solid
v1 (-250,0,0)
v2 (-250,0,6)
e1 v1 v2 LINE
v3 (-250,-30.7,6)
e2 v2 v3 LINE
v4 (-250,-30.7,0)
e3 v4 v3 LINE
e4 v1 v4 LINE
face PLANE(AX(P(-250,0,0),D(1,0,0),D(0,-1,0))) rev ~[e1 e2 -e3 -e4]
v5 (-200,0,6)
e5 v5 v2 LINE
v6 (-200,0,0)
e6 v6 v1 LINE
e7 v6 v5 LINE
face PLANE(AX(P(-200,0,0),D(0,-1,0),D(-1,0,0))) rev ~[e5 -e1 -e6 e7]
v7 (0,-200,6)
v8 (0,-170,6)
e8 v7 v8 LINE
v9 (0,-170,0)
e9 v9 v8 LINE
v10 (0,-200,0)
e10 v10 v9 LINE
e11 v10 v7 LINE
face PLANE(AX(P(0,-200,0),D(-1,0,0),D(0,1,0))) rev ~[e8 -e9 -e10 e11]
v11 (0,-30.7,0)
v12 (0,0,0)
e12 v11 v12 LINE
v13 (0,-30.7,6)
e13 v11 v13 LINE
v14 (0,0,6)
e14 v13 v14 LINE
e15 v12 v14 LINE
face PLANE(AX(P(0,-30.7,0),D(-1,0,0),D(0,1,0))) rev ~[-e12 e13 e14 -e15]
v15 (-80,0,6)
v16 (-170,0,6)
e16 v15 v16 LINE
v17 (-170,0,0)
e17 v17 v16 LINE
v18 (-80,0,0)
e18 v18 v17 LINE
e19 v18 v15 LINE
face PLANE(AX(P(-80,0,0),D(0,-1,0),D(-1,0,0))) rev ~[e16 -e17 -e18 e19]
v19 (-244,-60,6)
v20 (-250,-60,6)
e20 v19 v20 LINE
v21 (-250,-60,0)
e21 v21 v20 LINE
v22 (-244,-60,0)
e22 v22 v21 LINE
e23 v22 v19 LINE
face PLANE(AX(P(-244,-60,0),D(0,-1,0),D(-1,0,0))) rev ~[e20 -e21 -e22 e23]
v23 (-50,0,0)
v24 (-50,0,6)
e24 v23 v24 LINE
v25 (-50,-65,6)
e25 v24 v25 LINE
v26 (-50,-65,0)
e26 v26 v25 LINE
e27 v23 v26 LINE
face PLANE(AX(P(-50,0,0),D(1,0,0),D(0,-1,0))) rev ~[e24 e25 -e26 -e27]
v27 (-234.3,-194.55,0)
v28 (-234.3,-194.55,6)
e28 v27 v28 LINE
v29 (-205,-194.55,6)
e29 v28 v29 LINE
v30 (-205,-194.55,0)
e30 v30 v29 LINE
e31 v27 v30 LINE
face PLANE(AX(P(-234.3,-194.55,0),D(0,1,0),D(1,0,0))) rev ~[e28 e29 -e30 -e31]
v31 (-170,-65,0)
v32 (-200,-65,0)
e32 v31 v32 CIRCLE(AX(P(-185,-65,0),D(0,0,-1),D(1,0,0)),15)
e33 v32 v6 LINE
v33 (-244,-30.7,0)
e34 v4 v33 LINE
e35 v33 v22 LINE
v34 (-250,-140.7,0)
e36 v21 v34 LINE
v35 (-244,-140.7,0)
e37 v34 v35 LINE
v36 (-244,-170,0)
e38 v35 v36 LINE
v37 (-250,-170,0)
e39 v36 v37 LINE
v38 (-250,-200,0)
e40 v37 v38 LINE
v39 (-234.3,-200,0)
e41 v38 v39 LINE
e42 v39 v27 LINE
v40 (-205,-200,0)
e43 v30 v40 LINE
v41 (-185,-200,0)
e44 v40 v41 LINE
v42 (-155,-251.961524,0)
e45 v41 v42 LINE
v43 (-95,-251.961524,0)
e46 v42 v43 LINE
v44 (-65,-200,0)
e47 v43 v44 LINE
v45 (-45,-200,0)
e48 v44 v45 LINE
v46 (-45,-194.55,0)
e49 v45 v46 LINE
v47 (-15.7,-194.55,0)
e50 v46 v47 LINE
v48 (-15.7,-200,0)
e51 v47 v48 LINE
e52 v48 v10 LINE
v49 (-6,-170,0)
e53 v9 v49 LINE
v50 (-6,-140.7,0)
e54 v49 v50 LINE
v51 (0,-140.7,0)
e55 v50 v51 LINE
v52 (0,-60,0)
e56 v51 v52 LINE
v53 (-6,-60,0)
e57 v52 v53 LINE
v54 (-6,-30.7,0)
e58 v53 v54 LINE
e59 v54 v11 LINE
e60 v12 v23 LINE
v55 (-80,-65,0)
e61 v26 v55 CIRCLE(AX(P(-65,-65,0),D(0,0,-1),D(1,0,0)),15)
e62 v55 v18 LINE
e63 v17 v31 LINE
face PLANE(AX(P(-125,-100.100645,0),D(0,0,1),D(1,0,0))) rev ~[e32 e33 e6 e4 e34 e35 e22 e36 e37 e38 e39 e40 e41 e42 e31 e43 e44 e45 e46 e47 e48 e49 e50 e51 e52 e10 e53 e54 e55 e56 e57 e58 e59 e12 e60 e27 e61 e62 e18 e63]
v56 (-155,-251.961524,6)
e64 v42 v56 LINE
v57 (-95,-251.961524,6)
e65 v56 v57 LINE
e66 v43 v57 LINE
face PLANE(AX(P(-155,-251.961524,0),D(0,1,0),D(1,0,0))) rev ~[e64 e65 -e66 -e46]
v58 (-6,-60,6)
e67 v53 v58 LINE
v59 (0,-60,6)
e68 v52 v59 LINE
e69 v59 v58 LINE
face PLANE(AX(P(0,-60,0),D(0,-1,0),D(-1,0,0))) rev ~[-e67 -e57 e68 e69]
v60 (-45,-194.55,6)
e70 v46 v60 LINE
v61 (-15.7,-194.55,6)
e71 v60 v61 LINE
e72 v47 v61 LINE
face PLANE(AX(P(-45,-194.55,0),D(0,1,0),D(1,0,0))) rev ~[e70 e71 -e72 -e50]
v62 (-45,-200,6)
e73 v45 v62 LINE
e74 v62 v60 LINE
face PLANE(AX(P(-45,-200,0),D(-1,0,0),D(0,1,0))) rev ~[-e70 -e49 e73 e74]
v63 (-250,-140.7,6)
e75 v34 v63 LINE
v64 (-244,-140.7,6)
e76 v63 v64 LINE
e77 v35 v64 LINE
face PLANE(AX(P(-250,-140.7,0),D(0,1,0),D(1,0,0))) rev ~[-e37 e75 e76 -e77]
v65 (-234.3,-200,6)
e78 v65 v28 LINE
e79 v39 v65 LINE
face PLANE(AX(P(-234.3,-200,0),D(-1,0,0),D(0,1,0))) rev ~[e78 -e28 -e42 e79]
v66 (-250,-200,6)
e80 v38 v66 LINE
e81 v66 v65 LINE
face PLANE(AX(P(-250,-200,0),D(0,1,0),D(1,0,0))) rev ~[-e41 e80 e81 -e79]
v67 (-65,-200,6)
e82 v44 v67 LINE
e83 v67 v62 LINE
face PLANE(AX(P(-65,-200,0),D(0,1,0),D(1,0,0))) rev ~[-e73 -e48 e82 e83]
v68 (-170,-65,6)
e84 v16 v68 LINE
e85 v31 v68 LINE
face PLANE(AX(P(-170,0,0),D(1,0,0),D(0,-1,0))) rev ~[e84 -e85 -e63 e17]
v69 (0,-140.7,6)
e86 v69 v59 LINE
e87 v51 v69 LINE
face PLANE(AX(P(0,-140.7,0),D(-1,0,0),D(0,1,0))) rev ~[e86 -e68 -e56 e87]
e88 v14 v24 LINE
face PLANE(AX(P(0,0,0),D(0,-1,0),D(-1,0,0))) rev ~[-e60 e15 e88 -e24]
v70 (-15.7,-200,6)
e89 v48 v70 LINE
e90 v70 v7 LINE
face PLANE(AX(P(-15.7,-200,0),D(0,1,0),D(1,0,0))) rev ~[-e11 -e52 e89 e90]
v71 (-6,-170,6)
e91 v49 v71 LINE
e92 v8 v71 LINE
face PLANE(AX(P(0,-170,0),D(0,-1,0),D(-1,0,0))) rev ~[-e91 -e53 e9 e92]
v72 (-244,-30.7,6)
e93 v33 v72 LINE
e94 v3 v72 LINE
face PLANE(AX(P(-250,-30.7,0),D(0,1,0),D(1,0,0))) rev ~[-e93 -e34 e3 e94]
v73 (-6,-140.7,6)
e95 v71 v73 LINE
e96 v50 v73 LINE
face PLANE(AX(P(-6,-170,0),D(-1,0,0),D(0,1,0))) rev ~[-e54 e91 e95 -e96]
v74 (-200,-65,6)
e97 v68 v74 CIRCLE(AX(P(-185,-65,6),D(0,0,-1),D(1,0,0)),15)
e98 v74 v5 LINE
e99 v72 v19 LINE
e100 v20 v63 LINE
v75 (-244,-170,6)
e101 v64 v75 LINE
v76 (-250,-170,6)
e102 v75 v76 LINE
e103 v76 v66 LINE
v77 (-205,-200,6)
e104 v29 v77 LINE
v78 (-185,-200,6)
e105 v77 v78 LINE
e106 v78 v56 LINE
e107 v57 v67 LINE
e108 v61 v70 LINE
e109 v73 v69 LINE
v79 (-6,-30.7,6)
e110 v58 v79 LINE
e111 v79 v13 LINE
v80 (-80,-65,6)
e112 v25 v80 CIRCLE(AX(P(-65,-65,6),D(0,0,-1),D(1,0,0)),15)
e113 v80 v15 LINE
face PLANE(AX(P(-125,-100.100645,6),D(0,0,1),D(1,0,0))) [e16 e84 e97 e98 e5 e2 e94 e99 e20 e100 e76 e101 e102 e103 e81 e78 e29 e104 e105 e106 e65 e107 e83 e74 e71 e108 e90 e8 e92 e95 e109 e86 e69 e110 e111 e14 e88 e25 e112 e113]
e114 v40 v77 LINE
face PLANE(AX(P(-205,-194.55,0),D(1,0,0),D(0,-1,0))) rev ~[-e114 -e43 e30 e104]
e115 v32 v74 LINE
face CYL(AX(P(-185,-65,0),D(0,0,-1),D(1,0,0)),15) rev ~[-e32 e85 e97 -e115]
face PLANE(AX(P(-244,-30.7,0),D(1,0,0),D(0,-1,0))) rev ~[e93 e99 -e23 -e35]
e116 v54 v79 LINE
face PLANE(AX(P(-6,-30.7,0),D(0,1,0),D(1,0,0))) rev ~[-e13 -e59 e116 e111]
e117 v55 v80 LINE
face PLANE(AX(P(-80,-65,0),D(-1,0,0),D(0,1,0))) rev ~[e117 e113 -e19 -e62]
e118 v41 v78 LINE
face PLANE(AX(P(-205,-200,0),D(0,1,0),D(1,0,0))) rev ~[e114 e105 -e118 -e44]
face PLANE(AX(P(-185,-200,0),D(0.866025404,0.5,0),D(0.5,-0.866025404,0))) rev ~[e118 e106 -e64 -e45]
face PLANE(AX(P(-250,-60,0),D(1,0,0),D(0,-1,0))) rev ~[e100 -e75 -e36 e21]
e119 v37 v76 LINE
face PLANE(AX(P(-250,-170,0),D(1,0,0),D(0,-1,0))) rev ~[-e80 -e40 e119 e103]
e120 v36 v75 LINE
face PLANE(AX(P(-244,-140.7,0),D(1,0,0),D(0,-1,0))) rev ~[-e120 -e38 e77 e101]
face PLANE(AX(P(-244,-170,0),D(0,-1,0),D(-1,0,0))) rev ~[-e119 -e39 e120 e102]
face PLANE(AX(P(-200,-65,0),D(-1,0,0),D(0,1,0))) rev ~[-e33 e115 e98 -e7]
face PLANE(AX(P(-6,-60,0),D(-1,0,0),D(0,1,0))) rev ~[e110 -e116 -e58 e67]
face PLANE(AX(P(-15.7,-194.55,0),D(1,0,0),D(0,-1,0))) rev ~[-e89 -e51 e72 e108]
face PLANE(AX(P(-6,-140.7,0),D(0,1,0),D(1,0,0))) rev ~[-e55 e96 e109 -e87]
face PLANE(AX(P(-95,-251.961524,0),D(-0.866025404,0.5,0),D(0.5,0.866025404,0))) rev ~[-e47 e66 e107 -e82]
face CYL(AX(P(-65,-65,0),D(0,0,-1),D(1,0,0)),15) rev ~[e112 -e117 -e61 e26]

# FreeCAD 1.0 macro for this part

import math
import FreeCAD as App
import Part
import Sketcher

V = App.Vector
Q = App.Units.Quantity

doc = App.newDocument("Part")
params = doc.addObject("Spreadsheet::Sheet", "Params")
for row, (alias, value) in enumerate([
    ("sketch1_radius", "15 mm"),
    ("sketch1_width", "50 mm"),
    ("sketch1_width2", "90 mm"),
    ("sketch1_width3", "6 mm"),
    ("sketch1_width4", "20 mm"),
    ("pad1_length", "6 mm"),
], start=1):
    params.set(f"A{row}", alias)
    params.set(f"B{row}", "=" + value)
    params.setAlias(f"B{row}", alias)

body = doc.addObject("PartDesign::Body", "Body")

# Sketch on XY plane
sketch1 = doc.addObject("Sketcher::SketchObject", "Sketch")
body.addObject(sketch1)
sketch1.AttachmentSupport = (doc.XY_Plane, [""])
sketch1.MapMode = "FlatFace"
sketch1.addGeometry(Part.LineSegment(V(0, 0, 0), V(-50, 0, 0)), False)
sketch1.addGeometry(Part.LineSegment(V(-50, 0, 0), V(-50, -65, 0)), False)
sketch1.addGeometry(Part.ArcOfCircle(Part.Circle(V(-65, -65, 0), V(0, 0, 1), 15), math.radians(180), math.radians(360)), False)
sketch1.addGeometry(Part.LineSegment(V(-80, -65, 0), V(-80, 0, 0)), False)
sketch1.addGeometry(Part.LineSegment(V(-80, 0, 0), V(-170, 0, 0)), False)
sketch1.addGeometry(Part.LineSegment(V(-170, 0, 0), V(-170, -65, 0)), False)
sketch1.addGeometry(Part.ArcOfCircle(Part.Circle(V(-185, -65, 0), V(0, 0, 1), 15), math.radians(180), math.radians(360)), False)
sketch1.addGeometry(Part.LineSegment(V(-200, -65, 0), V(-200, 0, 0)), False)
sketch1.addGeometry(Part.LineSegment(V(-200, 0, 0), V(-250, 0, 0)), False)
sketch1.addGeometry(Part.LineSegment(V(-250, 0, 0), V(-250, -31, 0)), False)
sketch1.addGeometry(Part.LineSegment(V(-250, -31, 0), V(-244, -31, 0)), False)
sketch1.addGeometry(Part.LineSegment(V(-244, -31, 0), V(-244, -60, 0)), False)
sketch1.addGeometry(Part.LineSegment(V(-244, -60, 0), V(-250, -60, 0)), False)
sketch1.addGeometry(Part.LineSegment(V(-250, -60, 0), V(-250, -141, 0)), False)
sketch1.addGeometry(Part.LineSegment(V(-250, -141, 0), V(-244, -141, 0)), False)
sketch1.addGeometry(Part.LineSegment(V(-244, -141, 0), V(-244, -170, 0)), False)
sketch1.addGeometry(Part.LineSegment(V(-244, -170, 0), V(-250, -170, 0)), False)
sketch1.addGeometry(Part.LineSegment(V(-250, -170, 0), V(-250, -200, 0)), False)
sketch1.addGeometry(Part.LineSegment(V(-250, -200, 0), V(-234, -200, 0)), False)
sketch1.addGeometry(Part.LineSegment(V(-234, -200, 0), V(-234, -195, 0)), False)
sketch1.addGeometry(Part.LineSegment(V(-234, -195, 0), V(-205, -195, 0)), False)
sketch1.addGeometry(Part.LineSegment(V(-205, -195, 0), V(-205, -200, 0)), False)
sketch1.addGeometry(Part.LineSegment(V(-205, -200, 0), V(-185, -200, 0)), False)
sketch1.addGeometry(Part.LineSegment(V(-185, -200, 0), V(-155, -252, 0)), False)
sketch1.addGeometry(Part.LineSegment(V(-155, -252, 0), V(-95, -252, 0)), False)
sketch1.addGeometry(Part.LineSegment(V(-95, -252, 0), V(-65, -200, 0)), False)
sketch1.addGeometry(Part.LineSegment(V(-65, -200, 0), V(-45, -200, 0)), False)
sketch1.addGeometry(Part.LineSegment(V(-45, -200, 0), V(-45, -195, 0)), False)
sketch1.addGeometry(Part.LineSegment(V(-45, -195, 0), V(-16, -195, 0)), False)
sketch1.addGeometry(Part.LineSegment(V(-16, -195, 0), V(-16, -200, 0)), False)
sketch1.addGeometry(Part.LineSegment(V(-16, -200, 0), V(0, -200, 0)), False)
sketch1.addGeometry(Part.LineSegment(V(0, -200, 0), V(0, -170, 0)), False)
sketch1.addGeometry(Part.LineSegment(V(0, -170, 0), V(-6, -170, 0)), False)
sketch1.addGeometry(Part.LineSegment(V(-6, -170, 0), V(-6, -141, 0)), False)
sketch1.addGeometry(Part.LineSegment(V(-6, -141, 0), V(0, -141, 0)), False)
sketch1.addGeometry(Part.LineSegment(V(0, -141, 0), V(0, -60, 0)), False)
sketch1.addGeometry(Part.LineSegment(V(0, -60, 0), V(-6, -60, 0)), False)
sketch1.addGeometry(Part.LineSegment(V(-6, -60, 0), V(-6, -31, 0)), False)
sketch1.addGeometry(Part.LineSegment(V(-6, -31, 0), V(0, -31, 0)), False)
sketch1.addGeometry(Part.LineSegment(V(0, -31, 0), V(0, 0, 0)), False)
sketch1.addConstraint(Sketcher.Constraint("Coincident", 0, 2, 1, 1))
sketch1.addConstraint(Sketcher.Constraint("Tangent", 1, 2, 2, 2))
sketch1.addConstraint(Sketcher.Constraint("Tangent", 2, 1, 3, 1))
sketch1.addConstraint(Sketcher.Constraint("Coincident", 3, 2, 4, 1))
sketch1.addConstraint(Sketcher.Constraint("Coincident", 4, 2, 5, 1))
sketch1.addConstraint(Sketcher.Constraint("Tangent", 5, 2, 6, 2))
sketch1.addConstraint(Sketcher.Constraint("Tangent", 6, 1, 7, 1))
sketch1.addConstraint(Sketcher.Constraint("Coincident", 7, 2, 8, 1))
sketch1.addConstraint(Sketcher.Constraint("Coincident", 8, 2, 9, 1))
sketch1.addConstraint(Sketcher.Constraint("Coincident", 9, 2, 10, 1))
sketch1.addConstraint(Sketcher.Constraint("Coincident", 10, 2, 11, 1))
sketch1.addConstraint(Sketcher.Constraint("Coincident", 11, 2, 12, 1))
sketch1.addConstraint(Sketcher.Constraint("Coincident", 12, 2, 13, 1))
sketch1.addConstraint(Sketcher.Constraint("Coincident", 13, 2, 14, 1))
sketch1.addConstraint(Sketcher.Constraint("Coincident", 14, 2, 15, 1))
sketch1.addConstraint(Sketcher.Constraint("Coincident", 15, 2, 16, 1))
sketch1.addConstraint(Sketcher.Constraint("Coincident", 16, 2, 17, 1))
sketch1.addConstraint(Sketcher.Constraint("Coincident", 17, 2, 18, 1))
sketch1.addConstraint(Sketcher.Constraint("Coincident", 18, 2, 19, 1))
sketch1.addConstraint(Sketcher.Constraint("Coincident", 19, 2, 20, 1))
sketch1.addConstraint(Sketcher.Constraint("Coincident", 20, 2, 21, 1))
sketch1.addConstraint(Sketcher.Constraint("Coincident", 21, 2, 22, 1))
sketch1.addConstraint(Sketcher.Constraint("Coincident", 22, 2, 23, 1))
sketch1.addConstraint(Sketcher.Constraint("Coincident", 23, 2, 24, 1))
sketch1.addConstraint(Sketcher.Constraint("Coincident", 24, 2, 25, 1))
sketch1.addConstraint(Sketcher.Constraint("Coincident", 25, 2, 26, 1))
sketch1.addConstraint(Sketcher.Constraint("Coincident", 26, 2, 27, 1))
sketch1.addConstraint(Sketcher.Constraint("Coincident", 27, 2, 28, 1))
sketch1.addConstraint(Sketcher.Constraint("Coincident", 28, 2, 29, 1))
sketch1.addConstraint(Sketcher.Constraint("Coincident", 29, 2, 30, 1))
sketch1.addConstraint(Sketcher.Constraint("Coincident", 30, 2, 31, 1))
sketch1.addConstraint(Sketcher.Constraint("Coincident", 31, 2, 32, 1))
sketch1.addConstraint(Sketcher.Constraint("Coincident", 32, 2, 33, 1))
sketch1.addConstraint(Sketcher.Constraint("Coincident", 33, 2, 34, 1))
sketch1.addConstraint(Sketcher.Constraint("Coincident", 34, 2, 35, 1))
sketch1.addConstraint(Sketcher.Constraint("Coincident", 35, 2, 36, 1))
sketch1.addConstraint(Sketcher.Constraint("Coincident", 36, 2, 37, 1))
sketch1.addConstraint(Sketcher.Constraint("Coincident", 37, 2, 38, 1))
sketch1.addConstraint(Sketcher.Constraint("Coincident", 38, 2, 39, 1))
sketch1.addConstraint(Sketcher.Constraint("Coincident", 39, 2, 0, 1))
sketch1.addConstraint(Sketcher.Constraint("Horizontal", 0))
sketch1.addConstraint(Sketcher.Constraint("Vertical", 1))
sketch1.addConstraint(Sketcher.Constraint("Vertical", 3))
sketch1.addConstraint(Sketcher.Constraint("Horizontal", 4))
sketch1.addConstraint(Sketcher.Constraint("Vertical", 5))
sketch1.addConstraint(Sketcher.Constraint("Vertical", 7))
sketch1.addConstraint(Sketcher.Constraint("Horizontal", 8))
sketch1.addConstraint(Sketcher.Constraint("Vertical", 9))
sketch1.addConstraint(Sketcher.Constraint("Horizontal", 10))
sketch1.addConstraint(Sketcher.Constraint("Vertical", 11))
sketch1.addConstraint(Sketcher.Constraint("Horizontal", 12))
sketch1.addConstraint(Sketcher.Constraint("Vertical", 13))
sketch1.addConstraint(Sketcher.Constraint("Horizontal", 14))
sketch1.addConstraint(Sketcher.Constraint("Vertical", 15))
sketch1.addConstraint(Sketcher.Constraint("Horizontal", 16))
sketch1.addConstraint(Sketcher.Constraint("Vertical", 17))
sketch1.addConstraint(Sketcher.Constraint("Horizontal", 18))
sketch1.addConstraint(Sketcher.Constraint("Vertical", 19))
sketch1.addConstraint(Sketcher.Constraint("Horizontal", 20))
sketch1.addConstraint(Sketcher.Constraint("Vertical", 21))
sketch1.addConstraint(Sketcher.Constraint("Horizontal", 22))
sketch1.addConstraint(Sketcher.Constraint("Horizontal", 24))
sketch1.addConstraint(Sketcher.Constraint("Horizontal", 26))
sketch1.addConstraint(Sketcher.Constraint("Vertical", 27))
sketch1.addConstraint(Sketcher.Constraint("Horizontal", 28))
sketch1.addConstraint(Sketcher.Constraint("Vertical", 29))
sketch1.addConstraint(Sketcher.Constraint("Horizontal", 30))
sketch1.addConstraint(Sketcher.Constraint("Vertical", 31))
sketch1.addConstraint(Sketcher.Constraint("Horizontal", 32))
sketch1.addConstraint(Sketcher.Constraint("Vertical", 33))
sketch1.addConstraint(Sketcher.Constraint("Horizontal", 34))
sketch1.addConstraint(Sketcher.Constraint("Vertical", 35))
sketch1.addConstraint(Sketcher.Constraint("Horizontal", 36))
sketch1.addConstraint(Sketcher.Constraint("Vertical", 37))
sketch1.addConstraint(Sketcher.Constraint("Horizontal", 38))
sketch1.addConstraint(Sketcher.Constraint("Vertical", 39))
sketch1.addConstraint(Sketcher.Constraint("Coincident", 39, 2, -1, 1))
sketch1.addConstraint(Sketcher.Constraint("Equal", 2, 6))
sketch1.addConstraint(Sketcher.Constraint("PointOnObject", 3, 2, -1))
sketch1.addConstraint(Sketcher.Constraint("PointOnObject", 7, 2, -1))
sketch1.addConstraint(Sketcher.Constraint("PointOnObject", 30, 2, -2))
sketch1.addConstraint(Sketcher.Constraint("PointOnObject", 34, 2, -2))
sketch1.addConstraint(Sketcher.Constraint("Horizontal", 2, 3, 6, 3))
sketch1.addConstraint(Sketcher.Constraint("Horizontal", 18, 2, 21, 2))
sketch1.addConstraint(Sketcher.Constraint("Horizontal", 22, 2, 25, 2))
sketch1.addConstraint(Sketcher.Constraint("Horizontal", 20, 2, 27, 2))
sketch1.addConstraint(Sketcher.Constraint("Horizontal", 26, 2, 29, 2))
sketch1.addConstraint(Sketcher.Constraint("Horizontal", 16, 2, 31, 2))
sketch1.addConstraint(Sketcher.Constraint("Horizontal", 14, 2, 33, 2))
sketch1.addConstraint(Sketcher.Constraint("Horizontal", 12, 2, 35, 2))
sketch1.addConstraint(Sketcher.Constraint("Horizontal", 10, 2, 37, 2))
sketch1.addConstraint(Sketcher.Constraint("Vertical", 9, 2, 12, 2))
sketch1.addConstraint(Sketcher.Constraint("Vertical", 11, 2, 14, 2))
sketch1.addConstraint(Sketcher.Constraint("Vertical", 13, 2, 16, 2))
sketch1.addConstraint(Sketcher.Constraint("Vertical", 6, 3, 22, 2))
sketch1.addConstraint(Sketcher.Constraint("Vertical", 2, 3, 25, 2))
sketch1.addConstraint(Sketcher.Constraint("Vertical", 33, 2, 36, 2))
sketch1.addConstraint(Sketcher.Constraint("Equal", 0, 8))
sketch1.addConstraint(Sketcher.Constraint("Equal", 22, 26))
sketch1.addConstraint(Sketcher.Constraint("Equal", 20, 28))
sketch1.addConstraint(Sketcher.Constraint("Equal", 16, 32))
sketch1.addConstraint(Sketcher.Constraint("Equal", 28, 11))
sketch1.addConstraint(Sketcher.Constraint("Equal", 11, 15))
sketch1.addConstraint(Sketcher.Constraint("Equal", 23, 25))
sketch1.addConstraint(Sketcher.Constraint("Radius", 2, 15.0))
sketch1.addConstraint(Sketcher.Constraint("DistanceX", 0, 2, 0, 1, 50.0))
sketch1.addConstraint(Sketcher.Constraint("DistanceX", 4, 2, 4, 1, 90.0))
sketch1.addConstraint(Sketcher.Constraint("DistanceX", 10, 1, 10, 2, 6.0))
sketch1.addConstraint(Sketcher.Constraint("DistanceX", 22, 1, 22, 2, 20.0))
sketch1.addConstraint(Sketcher.Constraint("DistanceX", 24, 1, 24, 2, 60.0))
sketch1.addConstraint(Sketcher.Constraint("DistanceY", 1, 2, 1, 1, 65.0))
sketch1.addConstraint(Sketcher.Constraint("DistanceY", 17, 2, 17, 1, 30.0))
sketch1.addConstraint(Sketcher.Constraint("Angle", 23, Q("-60 deg")))
sketch1.addConstraint(Sketcher.Constraint("DistanceX", 18, 1, 18, 2, 15.7))
sketch1.addConstraint(Sketcher.Constraint("DistanceY", 9, 2, 9, 1, 30.7))
sketch1.addConstraint(Sketcher.Constraint("DistanceY", 13, 2, 13, 1, 80.7))
sketch1.addConstraint(Sketcher.Constraint("DistanceY", 19, 1, 19, 2, 5.45))
sketch1.setExpression("Constraints[104]", "Params.sketch1_radius")
sketch1.setExpression("Constraints[105]", "Params.sketch1_width")
sketch1.setExpression("Constraints[106]", "Params.sketch1_width2")
sketch1.setExpression("Constraints[107]", "Params.sketch1_width3")
sketch1.setExpression("Constraints[108]", "Params.sketch1_width4")
pad1 = doc.addObject("PartDesign::Pad", "Pad")
body.addObject(pad1)
pad1.Profile = sketch1
pad1.setExpression("Length", "Params.pad1_length")

doc.recompute()
